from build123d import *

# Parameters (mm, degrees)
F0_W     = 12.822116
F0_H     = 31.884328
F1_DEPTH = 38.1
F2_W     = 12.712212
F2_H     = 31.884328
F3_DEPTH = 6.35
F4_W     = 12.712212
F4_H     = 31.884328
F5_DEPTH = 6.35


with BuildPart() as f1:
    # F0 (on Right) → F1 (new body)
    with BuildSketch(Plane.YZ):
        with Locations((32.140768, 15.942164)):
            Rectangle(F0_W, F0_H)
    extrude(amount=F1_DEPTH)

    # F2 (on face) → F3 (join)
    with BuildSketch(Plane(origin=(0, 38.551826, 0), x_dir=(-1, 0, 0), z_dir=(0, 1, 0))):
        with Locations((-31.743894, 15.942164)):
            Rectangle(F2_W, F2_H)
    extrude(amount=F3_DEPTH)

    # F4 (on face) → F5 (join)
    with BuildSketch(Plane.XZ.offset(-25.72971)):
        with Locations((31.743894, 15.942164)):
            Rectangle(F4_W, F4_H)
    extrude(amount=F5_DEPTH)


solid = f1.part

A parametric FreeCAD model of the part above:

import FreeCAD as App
import Part
import Sketcher
from FreeCAD import Vector
Q = App.Units.Quantity

doc = App.newDocument("Part")
body = doc.addObject("PartDesign::Body", "Body")

# Sketch on YZ plane
sketch1 = body.newObject("Sketcher::SketchObject", "Sketch")
sketch1.AttachmentSupport = (doc.getObject("YZ_Plane"), [""])
sketch1.MapMode = "FlatFace"
sketch1.addGeometry([
    Part.LineSegment(Vector(26, 32, 0), Vector(26, 0, 0)),
    Part.LineSegment(Vector(26, 0, 0), Vector(39, 0, 0)),
    Part.LineSegment(Vector(39, 0, 0), Vector(39, 32, 0)),
    Part.LineSegment(Vector(39, 32, 0), Vector(26, 32, 0)),
], False)
sketch1.addConstraint([
    Sketcher.Constraint("Coincident", 0, 2, 1, 1),
    Sketcher.Constraint("Coincident", 1, 2, 2, 1),
    Sketcher.Constraint("Coincident", 2, 2, 3, 1),
    Sketcher.Constraint("Coincident", 3, 2, 0, 1),
    Sketcher.Constraint("Vertical", 0),
    Sketcher.Constraint("Horizontal", 1),
    Sketcher.Constraint("Vertical", 2),
    Sketcher.Constraint("Horizontal", 3),
    Sketcher.Constraint("PointOnObject", 0, 2, -1),
    Sketcher.Constraint("DistanceY", 0, 2, 0, 1, Q("31.884328 mm")),
    Sketcher.Constraint("DistanceX", 1, 1, 1, 2, Q("12.822116 mm")),
    Sketcher.Constraint("DistanceX", -1, 1, 0, 2, Q("25.72971 mm")),
])
pad1 = body.newObject("PartDesign::Pad", "Pad")
pad1.Profile = sketch1
pad1.Length = Q("1.5 in")

# Sketch on XZ plane
sketch2 = body.newObject("Sketcher::SketchObject", "Sketch001")
sketch2.AttachmentSupport = (doc.getObject("XZ_Plane"), [""])
sketch2.MapMode = "FlatFace"
sketch2.AttachmentOffset = App.Placement(Vector(0, 0, -38.551826), App.Rotation())
sketch2.addGeometry([
    Part.LineSegment(Vector(38, 32, 0), Vector(38, 0, 0)),
    Part.LineSegment(Vector(38, 0, 0), Vector(25, 0, 0)),
    Part.LineSegment(Vector(25, 0, 0), Vector(25, 32, 0)),
    Part.LineSegment(Vector(25, 32, 0), Vector(38, 32, 0)),
], False)
sketch2.addConstraint([
    Sketcher.Constraint("Coincident", 0, 2, 1, 1),
    Sketcher.Constraint("Coincident", 1, 2, 2, 1),
    Sketcher.Constraint("Coincident", 2, 2, 3, 1),
    Sketcher.Constraint("Coincident", 3, 2, 0, 1),
    Sketcher.Constraint("Vertical", 0),
    Sketcher.Constraint("Horizontal", 1),
    Sketcher.Constraint("Vertical", 2),
    Sketcher.Constraint("Horizontal", 3),
    Sketcher.Constraint("PointOnObject", 0, 2, -1),
    Sketcher.Constraint("DistanceX", -1, 1, 0, 2, Q("1.5 in")),
    Sketcher.Constraint("DistanceY", 0, 2, 0, 1, Q("31.884328 mm")),
    Sketcher.Constraint("DistanceX", 1, 2, 1, 1, Q("12.712212 mm")),
])
pad2 = body.newObject("PartDesign::Pad", "Pad001")
pad2.Profile = sketch2
pad2.Length = Q("0.25 in")
pad2.Reversed = True

# Sketch on XZ plane
sketch3 = body.newObject("Sketcher::SketchObject", "Sketch002")
sketch3.AttachmentSupport = (doc.getObject("XZ_Plane"), [""])
sketch3.MapMode = "FlatFace"
sketch3.AttachmentOffset = App.Placement(Vector(0, 0, -25.72971), App.Rotation())
sketch3.addGeometry([
    Part.LineSegment(Vector(25, 32, 0), Vector(25, 0, 0)),
    Part.LineSegment(Vector(25, 0, 0), Vector(38, 0, 0)),
    Part.LineSegment(Vector(38, 0, 0), Vector(38, 32, 0)),
    Part.LineSegment(Vector(38, 32, 0), Vector(25, 32, 0)),
], False)
sketch3.addConstraint([
    Sketcher.Constraint("Coincident", 0, 2, 1, 1),
    Sketcher.Constraint("Coincident", 1, 2, 2, 1),
    Sketcher.Constraint("Coincident", 2, 2, 3, 1),
    Sketcher.Constraint("Coincident", 3, 2, 0, 1),
    Sketcher.Constraint("Vertical", 0),
    Sketcher.Constraint("Horizontal", 1),
    Sketcher.Constraint("Vertical", 2),
    Sketcher.Constraint("Horizontal", 3),
    Sketcher.Constraint("PointOnObject", 0, 2, -1),
    Sketcher.Constraint("DistanceX", -1, 1, 1, 2, Q("1.5 in")),
    Sketcher.Constraint("DistanceY", 0, 2, 0, 1, Q("31.884328 mm")),
    Sketcher.Constraint("DistanceX", 1, 1, 1, 2, Q("12.712212 mm")),
])
pad3 = body.newObject("PartDesign::Pad", "Pad002")
pad3.Profile = sketch3
pad3.Length = Q("0.25 in")

doc.recompute()
